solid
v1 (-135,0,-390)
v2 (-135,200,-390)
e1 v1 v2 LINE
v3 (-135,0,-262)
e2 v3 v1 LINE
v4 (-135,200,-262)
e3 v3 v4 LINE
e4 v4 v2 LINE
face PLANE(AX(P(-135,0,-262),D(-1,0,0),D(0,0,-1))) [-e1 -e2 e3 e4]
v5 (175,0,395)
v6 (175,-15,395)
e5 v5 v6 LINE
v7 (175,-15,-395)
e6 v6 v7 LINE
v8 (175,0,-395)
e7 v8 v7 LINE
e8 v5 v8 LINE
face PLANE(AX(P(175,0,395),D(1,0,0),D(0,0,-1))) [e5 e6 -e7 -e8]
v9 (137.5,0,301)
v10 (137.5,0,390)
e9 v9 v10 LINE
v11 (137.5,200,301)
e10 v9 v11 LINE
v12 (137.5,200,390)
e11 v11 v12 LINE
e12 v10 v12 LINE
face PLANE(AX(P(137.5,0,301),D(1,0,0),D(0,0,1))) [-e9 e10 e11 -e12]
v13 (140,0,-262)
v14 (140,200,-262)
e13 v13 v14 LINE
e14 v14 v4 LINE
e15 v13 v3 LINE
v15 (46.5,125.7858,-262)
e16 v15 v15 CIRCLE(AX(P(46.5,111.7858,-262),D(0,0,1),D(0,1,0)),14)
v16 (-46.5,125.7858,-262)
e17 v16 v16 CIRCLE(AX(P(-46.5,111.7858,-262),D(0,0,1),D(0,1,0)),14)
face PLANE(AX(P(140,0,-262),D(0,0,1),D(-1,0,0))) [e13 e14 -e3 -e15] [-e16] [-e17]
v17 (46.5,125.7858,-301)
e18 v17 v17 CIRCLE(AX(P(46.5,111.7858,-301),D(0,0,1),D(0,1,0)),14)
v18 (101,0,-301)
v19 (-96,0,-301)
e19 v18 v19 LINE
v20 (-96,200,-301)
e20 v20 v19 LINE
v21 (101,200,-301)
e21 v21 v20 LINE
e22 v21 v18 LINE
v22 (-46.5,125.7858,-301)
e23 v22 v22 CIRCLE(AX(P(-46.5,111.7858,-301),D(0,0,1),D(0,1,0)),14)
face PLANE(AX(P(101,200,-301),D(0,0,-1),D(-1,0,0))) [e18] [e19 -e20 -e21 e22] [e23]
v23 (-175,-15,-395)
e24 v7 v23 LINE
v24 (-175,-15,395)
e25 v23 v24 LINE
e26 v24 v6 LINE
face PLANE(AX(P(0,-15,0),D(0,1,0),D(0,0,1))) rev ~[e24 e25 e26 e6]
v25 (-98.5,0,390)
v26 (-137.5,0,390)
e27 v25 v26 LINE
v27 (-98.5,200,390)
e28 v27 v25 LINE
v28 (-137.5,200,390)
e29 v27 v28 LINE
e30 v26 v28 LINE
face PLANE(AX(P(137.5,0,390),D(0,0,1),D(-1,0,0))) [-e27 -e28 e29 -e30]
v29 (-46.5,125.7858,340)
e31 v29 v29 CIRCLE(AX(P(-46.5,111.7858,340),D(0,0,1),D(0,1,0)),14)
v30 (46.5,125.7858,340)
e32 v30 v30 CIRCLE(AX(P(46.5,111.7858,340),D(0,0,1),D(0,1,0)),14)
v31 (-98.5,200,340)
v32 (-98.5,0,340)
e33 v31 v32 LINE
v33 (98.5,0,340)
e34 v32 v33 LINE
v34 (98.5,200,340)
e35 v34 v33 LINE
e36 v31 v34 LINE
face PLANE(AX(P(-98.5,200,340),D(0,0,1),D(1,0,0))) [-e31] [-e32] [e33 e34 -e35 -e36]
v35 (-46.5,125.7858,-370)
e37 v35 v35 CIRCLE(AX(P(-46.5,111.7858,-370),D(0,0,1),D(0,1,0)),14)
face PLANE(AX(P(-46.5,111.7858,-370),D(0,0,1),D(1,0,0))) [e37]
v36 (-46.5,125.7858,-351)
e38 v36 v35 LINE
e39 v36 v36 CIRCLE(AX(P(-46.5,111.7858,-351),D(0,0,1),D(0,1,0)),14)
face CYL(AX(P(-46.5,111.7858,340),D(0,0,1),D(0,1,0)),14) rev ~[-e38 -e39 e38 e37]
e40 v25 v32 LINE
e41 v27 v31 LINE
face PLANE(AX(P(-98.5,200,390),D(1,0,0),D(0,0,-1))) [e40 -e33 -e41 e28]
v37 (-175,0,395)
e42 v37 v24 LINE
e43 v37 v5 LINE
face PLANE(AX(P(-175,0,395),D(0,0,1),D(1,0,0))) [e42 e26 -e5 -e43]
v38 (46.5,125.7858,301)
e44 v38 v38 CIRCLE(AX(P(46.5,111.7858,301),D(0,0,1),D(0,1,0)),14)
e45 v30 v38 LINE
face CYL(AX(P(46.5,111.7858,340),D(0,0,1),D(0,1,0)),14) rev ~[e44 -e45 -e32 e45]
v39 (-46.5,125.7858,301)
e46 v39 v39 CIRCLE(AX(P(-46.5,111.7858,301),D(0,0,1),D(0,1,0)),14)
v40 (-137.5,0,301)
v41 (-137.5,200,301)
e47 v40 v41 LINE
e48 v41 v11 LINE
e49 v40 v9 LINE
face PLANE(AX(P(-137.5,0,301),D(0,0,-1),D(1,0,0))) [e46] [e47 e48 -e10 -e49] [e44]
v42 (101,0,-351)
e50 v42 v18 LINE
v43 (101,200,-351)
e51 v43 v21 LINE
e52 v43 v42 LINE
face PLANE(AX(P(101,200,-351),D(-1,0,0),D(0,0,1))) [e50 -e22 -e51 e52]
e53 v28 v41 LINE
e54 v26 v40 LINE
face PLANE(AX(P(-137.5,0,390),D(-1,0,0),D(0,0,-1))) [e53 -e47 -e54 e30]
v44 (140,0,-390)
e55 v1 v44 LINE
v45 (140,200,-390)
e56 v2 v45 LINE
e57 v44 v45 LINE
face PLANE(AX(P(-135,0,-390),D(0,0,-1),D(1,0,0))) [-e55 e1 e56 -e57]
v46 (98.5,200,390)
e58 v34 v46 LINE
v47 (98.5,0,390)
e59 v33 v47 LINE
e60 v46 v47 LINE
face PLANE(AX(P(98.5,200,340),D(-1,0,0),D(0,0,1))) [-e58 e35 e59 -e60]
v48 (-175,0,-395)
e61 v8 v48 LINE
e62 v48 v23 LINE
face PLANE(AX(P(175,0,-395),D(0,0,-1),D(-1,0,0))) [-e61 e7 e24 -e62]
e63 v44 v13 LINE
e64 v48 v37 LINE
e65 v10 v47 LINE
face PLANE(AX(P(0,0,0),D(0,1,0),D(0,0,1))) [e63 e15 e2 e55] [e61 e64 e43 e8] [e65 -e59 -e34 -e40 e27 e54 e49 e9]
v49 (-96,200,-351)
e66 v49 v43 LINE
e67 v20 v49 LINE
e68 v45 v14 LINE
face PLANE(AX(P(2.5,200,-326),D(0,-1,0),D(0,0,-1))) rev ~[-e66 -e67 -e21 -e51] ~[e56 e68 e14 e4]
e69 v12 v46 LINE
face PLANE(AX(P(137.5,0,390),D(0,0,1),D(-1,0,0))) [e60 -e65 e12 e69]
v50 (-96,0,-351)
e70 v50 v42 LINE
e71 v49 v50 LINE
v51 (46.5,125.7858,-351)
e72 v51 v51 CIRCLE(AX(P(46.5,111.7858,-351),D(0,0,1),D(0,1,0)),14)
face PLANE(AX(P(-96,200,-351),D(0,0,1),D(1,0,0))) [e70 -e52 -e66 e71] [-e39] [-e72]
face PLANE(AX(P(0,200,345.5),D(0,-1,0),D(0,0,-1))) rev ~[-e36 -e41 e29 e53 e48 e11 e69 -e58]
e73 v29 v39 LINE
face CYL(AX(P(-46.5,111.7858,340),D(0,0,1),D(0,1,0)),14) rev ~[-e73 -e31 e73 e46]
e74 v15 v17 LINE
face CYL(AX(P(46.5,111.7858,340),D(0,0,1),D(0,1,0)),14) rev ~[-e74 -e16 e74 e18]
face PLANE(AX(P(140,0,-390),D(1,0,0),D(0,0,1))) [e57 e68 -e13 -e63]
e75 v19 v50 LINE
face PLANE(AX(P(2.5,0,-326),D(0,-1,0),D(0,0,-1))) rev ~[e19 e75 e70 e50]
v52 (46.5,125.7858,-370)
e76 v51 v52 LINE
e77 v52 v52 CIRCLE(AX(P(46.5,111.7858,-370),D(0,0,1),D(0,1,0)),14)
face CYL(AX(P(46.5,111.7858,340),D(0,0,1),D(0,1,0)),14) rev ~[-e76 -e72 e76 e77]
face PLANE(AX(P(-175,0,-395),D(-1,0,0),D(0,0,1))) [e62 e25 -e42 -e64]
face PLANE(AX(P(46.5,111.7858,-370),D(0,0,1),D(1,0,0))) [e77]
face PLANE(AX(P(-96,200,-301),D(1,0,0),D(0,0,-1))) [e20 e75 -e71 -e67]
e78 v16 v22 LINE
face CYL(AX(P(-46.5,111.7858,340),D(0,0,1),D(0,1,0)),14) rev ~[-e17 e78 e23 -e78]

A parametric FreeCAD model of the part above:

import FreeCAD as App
import Part
import Sketcher
from FreeCAD import Vector

doc = App.newDocument("Part")
params = doc.addObject("Spreadsheet::Sheet", "Params")
for row, (alias, value) in enumerate([
    ("sketch1_height", "790 mm"),
    ("pad1_length", "15 mm"),
    ("sketch2_width", "275 mm"),
    ("pad2_length", "200 mm"),
    ("sketch3_width", "275 mm"),
    ("pad3_length", "200 mm"),
    ("sketch4_width", "197 mm"),
    ("sketch4_height", "50 mm"),
    ("pocket1_length", "200 mm"),
    ("sketch5_width", "197 mm"),
    ("sketch5_height", "50 mm"),
    ("pocket2_length", "200 mm"),
    ("sketch6_diameter", "28 mm"),
    ("pocket3_length", "710 mm"),
], start=1):
    params.set(f"A{row}", alias)
    params.set(f"B{row}", "=" + value)
    params.setAlias(f"B{row}", alias)

body = doc.addObject("PartDesign::Body", "Body")

sketch1 = body.newObject("Sketcher::SketchObject", "Sketch")
sketch1.AttachmentSupport = (doc.getObject("XZ_Plane"), [""])
sketch1.MapMode = "FlatFace"
sketch1.addGeometry([
    Part.LineSegment(Vector(175, 395, 0), Vector(175, -395, 0)),
    Part.LineSegment(Vector(175, -395, 0), Vector(-175, -395, 0)),
    Part.LineSegment(Vector(-175, -395, 0), Vector(-175, 395, 0)),
    Part.LineSegment(Vector(-175, 395, 0), Vector(175, 395, 0)),
], False)
sketch1.addConstraint([
    Sketcher.Constraint("Coincident", 0, 2, 1, 1),
    Sketcher.Constraint("Coincident", 1, 2, 2, 1),
    Sketcher.Constraint("Coincident", 2, 2, 3, 1),
    Sketcher.Constraint("Coincident", 3, 2, 0, 1),
    Sketcher.Constraint("Vertical", 0),
    Sketcher.Constraint("Horizontal", 1),
    Sketcher.Constraint("Vertical", 2),
    Sketcher.Constraint("Horizontal", 3),
    Sketcher.Constraint("Symmetric", 0, 2, 2, 2, -1, 1),
    Sketcher.Constraint("DistanceX", -1, 1, 0, 2, 175.0),
    Sketcher.Constraint("DistanceY", 0, 2, 0, 1, 790.0),
])
sketch1.setExpression("Constraints[10]", "Params.sketch1_height")
pad1 = body.newObject("PartDesign::Pad", "Pad")
pad1.Profile = sketch1
pad1.setExpression("Length", "Params.pad1_length")

sketch2 = body.newObject("Sketcher::SketchObject", "Sketch001")
sketch2.AttachmentSupport = (doc.getObject("XZ_Plane"), [""])
sketch2.MapMode = "FlatFace"
sketch2.addGeometry([
    Part.LineSegment(Vector(-137.5, 301, 0), Vector(-137.5, 390, 0)),
    Part.LineSegment(Vector(-137.5, 390, 0), Vector(137.5, 390, 0)),
    Part.LineSegment(Vector(137.5, 390, 0), Vector(137.5, 301, 0)),
    Part.LineSegment(Vector(137.5, 301, 0), Vector(-137.5, 301, 0)),
], False)
sketch2.addConstraint([
    Sketcher.Constraint("Coincident", 0, 2, 1, 1),
    Sketcher.Constraint("Coincident", 1, 2, 2, 1),
    Sketcher.Constraint("Coincident", 2, 2, 3, 1),
    Sketcher.Constraint("Coincident", 3, 2, 0, 1),
    Sketcher.Constraint("Vertical", 0),
    Sketcher.Constraint("Horizontal", 1),
    Sketcher.Constraint("Vertical", 2),
    Sketcher.Constraint("Horizontal", 3),
    Sketcher.Constraint("DistanceY", -1, 1, 0, 2, 390.0),
    Sketcher.Constraint("DistanceY", -1, 1, 2, 2, 301.0),
    Sketcher.Constraint("DistanceX", 1, 1, 1, 2, 275.0),
    Sketcher.Constraint("DistanceX", 0, 2, -1, 1, 137.5),
])
sketch2.setExpression("Constraints[10]", "Params.sketch2_width")
pad2 = body.newObject("PartDesign::Pad", "Pad001")
pad2.Profile = sketch2
pad2.setExpression("Length", "Params.pad2_length")
pad2.Reversed = True

sketch3 = body.newObject("Sketcher::SketchObject", "Sketch002")
sketch3.AttachmentSupport = (doc.getObject("XZ_Plane"), [""])
sketch3.MapMode = "FlatFace"
sketch3.addGeometry([
    Part.LineSegment(Vector(-135, -390, 0), Vector(-135, -262, 0)),
    Part.LineSegment(Vector(-135, -262, 0), Vector(140, -262, 0)),
    Part.LineSegment(Vector(140, -262, 0), Vector(140, -390, 0)),
    Part.LineSegment(Vector(140, -390, 0), Vector(-135, -390, 0)),
], False)
sketch3.addConstraint([
    Sketcher.Constraint("Coincident", 0, 2, 1, 1),
    Sketcher.Constraint("Coincident", 1, 2, 2, 1),
    Sketcher.Constraint("Coincident", 2, 2, 3, 1),
    Sketcher.Constraint("Coincident", 3, 2, 0, 1),
    Sketcher.Constraint("Vertical", 0),
    Sketcher.Constraint("Horizontal", 1),
    Sketcher.Constraint("Vertical", 2),
    Sketcher.Constraint("Horizontal", 3),
    Sketcher.Constraint("DistanceY", 0, 2, -1, 1, 262.0),
    Sketcher.Constraint("DistanceY", 2, 2, -1, 1, 390.0),
    Sketcher.Constraint("DistanceX", 1, 1, 1, 2, 275.0),
    Sketcher.Constraint("DistanceX", 0, 2, -1, 1, 135.0),
])
sketch3.setExpression("Constraints[10]", "Params.sketch3_width")
pad3 = body.newObject("PartDesign::Pad", "Pad002")
pad3.Profile = sketch3
pad3.setExpression("Length", "Params.pad3_length")
pad3.Reversed = True

sketch4 = body.newObject("Sketcher::SketchObject", "Sketch003")
sketch4.AttachmentSupport = (doc.getObject("XZ_Plane"), [""])
sketch4.MapMode = "FlatFace"
sketch4.AttachmentOffset = App.Placement(Vector(0, 0, -200), App.Rotation())
sketch4.addGeometry([
    Part.LineSegment(Vector(-98.5, 340, 0), Vector(-98.5, 390, 0)),
    Part.LineSegment(Vector(-98.5, 390, 0), Vector(98.5, 390, 0)),
    Part.LineSegment(Vector(98.5, 390, 0), Vector(98.5, 340, 0)),
    Part.LineSegment(Vector(98.5, 340, 0), Vector(-98.5, 340, 0)),
], False)
sketch4.addConstraint([
    Sketcher.Constraint("Coincident", 0, 2, 1, 1),
    Sketcher.Constraint("Coincident", 1, 2, 2, 1),
    Sketcher.Constraint("Coincident", 2, 2, 3, 1),
    Sketcher.Constraint("Coincident", 3, 2, 0, 1),
    Sketcher.Constraint("Vertical", 0),
    Sketcher.Constraint("Horizontal", 1),
    Sketcher.Constraint("Vertical", 2),
    Sketcher.Constraint("Horizontal", 3),
    Sketcher.Constraint("DistanceX", 1, 1, 1, 2, 197.0),
    Sketcher.Constraint("DistanceY", 0, 1, 0, 2, 50.0),
    Sketcher.Constraint("DistanceY", -1, 1, 0, 2, 390.0),
    Sketcher.Constraint("DistanceX", 0, 2, -1, 1, 98.5),
])
sketch4.setExpression("Constraints[8]", "Params.sketch4_width")
sketch4.setExpression("Constraints[9]", "Params.sketch4_height")
pocket1 = body.newObject("PartDesign::Pocket", "Pocket")
pocket1.Profile = sketch4
pocket1.setExpression("Length", "Params.pocket1_length")
pocket1.Reversed = True

sketch5 = body.newObject("Sketcher::SketchObject", "Sketch004")
sketch5.AttachmentSupport = (doc.getObject("XZ_Plane"), [""])
sketch5.MapMode = "FlatFace"
sketch5.AttachmentOffset = App.Placement(Vector(0, 0, -200), App.Rotation())
sketch5.addGeometry([
    Part.LineSegment(Vector(-96, -351, 0), Vector(-96, -301, 0)),
    Part.LineSegment(Vector(-96, -301, 0), Vector(101, -301, 0)),
    Part.LineSegment(Vector(101, -301, 0), Vector(101, -351, 0)),
    Part.LineSegment(Vector(101, -351, 0), Vector(-96, -351, 0)),
], False)
sketch5.addConstraint([
    Sketcher.Constraint("Coincident", 0, 2, 1, 1),
    Sketcher.Constraint("Coincident", 1, 2, 2, 1),
    Sketcher.Constraint("Coincident", 2, 2, 3, 1),
    Sketcher.Constraint("Coincident", 3, 2, 0, 1),
    Sketcher.Constraint("Vertical", 0),
    Sketcher.Constraint("Horizontal", 1),
    Sketcher.Constraint("Vertical", 2),
    Sketcher.Constraint("Horizontal", 3),
    Sketcher.Constraint("DistanceX", 1, 1, 1, 2, 197.0),
    Sketcher.Constraint("DistanceY", 0, 1, 0, 2, 50.0),
    Sketcher.Constraint("DistanceX", 0, 2, -1, 1, 96.0),
    Sketcher.Constraint("DistanceY", 0, 2, -1, 1, 301.0),
])
sketch5.setExpression("Constraints[8]", "Params.sketch5_width")
sketch5.setExpression("Constraints[9]", "Params.sketch5_height")
pocket2 = body.newObject("PartDesign::Pocket", "Pocket001")
pocket2.Profile = sketch5
pocket2.setExpression("Length", "Params.pocket2_length")
pocket2.Reversed = True

sketch6 = body.newObject("Sketcher::SketchObject", "Sketch005")
sketch6.AttachmentSupport = (doc.getObject("XY_Plane"), [""])
sketch6.MapMode = "FlatFace"
sketch6.AttachmentOffset = App.Placement(Vector(0, 0, 340), App.Rotation())
sketch6.addGeometry([
    Part.Circle(Vector(46.5, 111.7858, 0), Vector(0, 0, 1), 14),
    Part.Circle(Vector(-46.5, 111.7858, 0), Vector(0, 0, 1), 14),
], False)
sketch6.addConstraint([
    Sketcher.Constraint("Equal", 0, 1),
    Sketcher.Constraint("Symmetric", 0, 3, 1, 3, -2),
    Sketcher.Constraint("Diameter", 0, 28.0),
    Sketcher.Constraint("DistanceX", 1, 3, 0, 3, 93.0),
    Sketcher.Constraint("DistanceY", -1, 1, 0, 3, 111.7858),
])
sketch6.setExpression("Constraints[2]", "Params.sketch6_diameter")
pocket3 = body.newObject("PartDesign::Pocket", "Pocket002")
pocket3.Profile = sketch6
pocket3.setExpression("Length", "Params.pocket3_length")

doc.recompute()
